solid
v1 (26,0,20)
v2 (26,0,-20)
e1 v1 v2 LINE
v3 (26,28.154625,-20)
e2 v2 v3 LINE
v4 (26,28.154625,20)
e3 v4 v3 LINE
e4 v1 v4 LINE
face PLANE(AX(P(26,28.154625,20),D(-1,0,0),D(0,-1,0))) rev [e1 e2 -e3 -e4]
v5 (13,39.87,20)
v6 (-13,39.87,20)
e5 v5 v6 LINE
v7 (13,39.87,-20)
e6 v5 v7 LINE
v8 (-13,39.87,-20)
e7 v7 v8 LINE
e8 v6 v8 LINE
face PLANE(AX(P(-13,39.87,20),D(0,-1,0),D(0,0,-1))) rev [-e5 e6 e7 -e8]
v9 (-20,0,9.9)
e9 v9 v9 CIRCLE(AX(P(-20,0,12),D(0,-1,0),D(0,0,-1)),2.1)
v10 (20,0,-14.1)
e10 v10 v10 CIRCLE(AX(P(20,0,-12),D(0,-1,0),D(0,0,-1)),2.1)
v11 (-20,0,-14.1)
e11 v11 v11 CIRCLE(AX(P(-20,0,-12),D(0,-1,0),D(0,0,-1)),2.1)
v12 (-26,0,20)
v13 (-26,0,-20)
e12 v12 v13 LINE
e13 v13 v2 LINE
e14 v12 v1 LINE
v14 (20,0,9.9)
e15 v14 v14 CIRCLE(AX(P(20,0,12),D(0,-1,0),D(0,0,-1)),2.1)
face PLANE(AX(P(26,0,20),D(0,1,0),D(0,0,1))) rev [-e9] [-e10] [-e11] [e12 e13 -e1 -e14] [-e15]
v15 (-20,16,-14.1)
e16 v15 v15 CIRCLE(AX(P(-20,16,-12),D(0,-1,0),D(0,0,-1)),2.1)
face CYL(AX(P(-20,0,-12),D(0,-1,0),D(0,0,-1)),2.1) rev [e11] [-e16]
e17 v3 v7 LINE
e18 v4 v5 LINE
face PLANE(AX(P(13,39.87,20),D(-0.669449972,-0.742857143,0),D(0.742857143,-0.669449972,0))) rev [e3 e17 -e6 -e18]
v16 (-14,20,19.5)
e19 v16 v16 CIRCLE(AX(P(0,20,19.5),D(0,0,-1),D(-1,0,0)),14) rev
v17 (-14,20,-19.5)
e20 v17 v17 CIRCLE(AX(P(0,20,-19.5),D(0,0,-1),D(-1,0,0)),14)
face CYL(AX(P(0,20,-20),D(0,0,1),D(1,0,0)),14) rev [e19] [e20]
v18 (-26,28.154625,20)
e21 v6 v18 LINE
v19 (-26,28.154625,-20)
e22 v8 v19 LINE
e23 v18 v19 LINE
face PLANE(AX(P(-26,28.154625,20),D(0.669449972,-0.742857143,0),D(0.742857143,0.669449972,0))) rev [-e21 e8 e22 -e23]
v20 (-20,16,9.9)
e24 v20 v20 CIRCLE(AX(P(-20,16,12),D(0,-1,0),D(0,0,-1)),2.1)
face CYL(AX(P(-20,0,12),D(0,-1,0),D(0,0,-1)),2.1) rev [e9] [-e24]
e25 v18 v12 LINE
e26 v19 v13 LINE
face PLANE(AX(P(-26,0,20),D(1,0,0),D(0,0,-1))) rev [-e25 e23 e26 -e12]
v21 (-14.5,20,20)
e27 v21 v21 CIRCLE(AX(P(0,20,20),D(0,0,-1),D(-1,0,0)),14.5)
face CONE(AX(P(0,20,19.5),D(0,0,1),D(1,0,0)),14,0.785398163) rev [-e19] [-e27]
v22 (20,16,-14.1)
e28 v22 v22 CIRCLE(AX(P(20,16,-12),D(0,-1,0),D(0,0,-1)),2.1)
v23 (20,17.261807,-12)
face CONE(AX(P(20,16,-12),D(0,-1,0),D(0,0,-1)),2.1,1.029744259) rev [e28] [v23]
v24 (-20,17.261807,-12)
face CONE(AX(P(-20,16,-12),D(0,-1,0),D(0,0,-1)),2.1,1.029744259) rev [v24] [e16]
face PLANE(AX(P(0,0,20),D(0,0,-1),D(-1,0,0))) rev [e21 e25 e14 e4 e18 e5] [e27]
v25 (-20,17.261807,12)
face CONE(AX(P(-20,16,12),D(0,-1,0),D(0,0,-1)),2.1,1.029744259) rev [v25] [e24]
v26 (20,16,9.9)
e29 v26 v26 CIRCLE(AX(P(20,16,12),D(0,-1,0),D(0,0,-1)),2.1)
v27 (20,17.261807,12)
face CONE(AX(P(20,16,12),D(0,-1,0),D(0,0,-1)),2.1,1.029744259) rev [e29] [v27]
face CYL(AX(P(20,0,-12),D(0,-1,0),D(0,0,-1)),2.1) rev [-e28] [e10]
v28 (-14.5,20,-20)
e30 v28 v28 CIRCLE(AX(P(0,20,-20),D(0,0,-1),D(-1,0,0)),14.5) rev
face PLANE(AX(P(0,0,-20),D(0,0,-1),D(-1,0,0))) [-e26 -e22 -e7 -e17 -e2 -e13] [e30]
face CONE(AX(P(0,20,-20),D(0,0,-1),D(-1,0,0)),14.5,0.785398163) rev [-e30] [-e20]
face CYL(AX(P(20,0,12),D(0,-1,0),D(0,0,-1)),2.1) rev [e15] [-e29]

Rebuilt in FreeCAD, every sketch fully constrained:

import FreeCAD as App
import Part
import Sketcher

V = App.Vector
Q = App.Units.Quantity


def edges_at(feature, points):
    """Names of the edges that pass closest to the given points."""
    edges = feature.Shape.Edges
    near = lambda p: min(range(len(edges)), key=lambda i: edges[i].distToShape(Part.Vertex(*p))[0])
    return sorted({f"Edge{near(p) + 1}" for p in points})

doc = App.newDocument("Part")
body = doc.addObject("PartDesign::Body", "Body")

sketch1 = body.newObject("Sketcher::SketchObject", "Sketch")
sketch1.AttachmentSupport = (doc.getObject("XY_Plane"), [""])
sketch1.MapMode = "FlatFace"
sketch1.addGeometry(Part.LineSegment(V(-26, 0, 0), V(26, 0, 0)), False)
sketch1.addGeometry(Part.LineSegment(V(26, 0, 0), V(26, 28, 0)), False)
sketch1.addGeometry(Part.LineSegment(V(26, 28, 0), V(13, 40, 0)), False)
sketch1.addGeometry(Part.LineSegment(V(13, 40, 0), V(-13, 40, 0)), False)
sketch1.addGeometry(Part.LineSegment(V(-13, 40, 0), V(-26, 28, 0)), False)
sketch1.addGeometry(Part.LineSegment(V(-26, 28, 0), V(-26, 0, 0)), False)
sketch1.addConstraint(Sketcher.Constraint("Coincident", 0, 2, 1, 1))
sketch1.addConstraint(Sketcher.Constraint("Coincident", 1, 2, 2, 1))
sketch1.addConstraint(Sketcher.Constraint("Coincident", 2, 2, 3, 1))
sketch1.addConstraint(Sketcher.Constraint("Coincident", 3, 2, 4, 1))
sketch1.addConstraint(Sketcher.Constraint("Coincident", 4, 2, 5, 1))
sketch1.addConstraint(Sketcher.Constraint("Coincident", 5, 2, 0, 1))
sketch1.addConstraint(Sketcher.Constraint("Horizontal", 0))
sketch1.addConstraint(Sketcher.Constraint("Vertical", 1))
sketch1.addConstraint(Sketcher.Constraint("Horizontal", 3))
sketch1.addConstraint(Sketcher.Constraint("Vertical", 5))
sketch1.addConstraint(Sketcher.Constraint("Symmetric", 0, 2, 5, 2, -1, 1))
sketch1.addConstraint(Sketcher.Constraint("Horizontal", 1, 2, 4, 2))
sketch1.addConstraint(Sketcher.Constraint("Equal", 2, 4))
sketch1.addConstraint(Sketcher.Constraint("DistanceX", 0, 1, 0, 2, Q("52 mm")))
sketch1.addConstraint(Sketcher.Constraint("DistanceX", 3, 2, 3, 1, Q("26 mm")))
sketch1.addConstraint(Sketcher.Constraint("Distance", 2, Q("17.5 mm")))
sketch1.addConstraint(Sketcher.Constraint("DistanceY", -1, 1, 2, 2, Q("39.87 mm")))
pad1 = body.newObject("PartDesign::Pad", "Pad")
pad1.Profile = sketch1
pad1.Length = 40
pad1.Midplane = True

sketch2 = body.newObject("Sketcher::SketchObject", "Sketch001")
sketch2.AttachmentSupport = (doc.getObject("XY_Plane"), [""])
sketch2.MapMode = "FlatFace"
sketch2.AttachmentOffset = App.Placement(V(0, 0, 20), App.Rotation())
sketch2.addGeometry(Part.Circle(V(0, 20, 0), V(0, 0, 1), 14), False)
sketch2.addConstraint(Sketcher.Constraint("PointOnObject", 0, 3, -2))
sketch2.addConstraint(Sketcher.Constraint("Diameter", 0, Q("28 mm")))
sketch2.addConstraint(Sketcher.Constraint("DistanceY", -1, 1, 0, 3, Q("20 mm")))
pocket1 = body.newObject("PartDesign::Pocket", "Pocket")
pocket1.Profile = sketch2
pocket1.Type = "ThroughAll"
doc.recompute()

chamfer = body.newObject("PartDesign::Chamfer", "Chamfer")
chamfer.Base = (pocket1, edges_at(pocket1, [(-14, 20, -20), (-14, 20, 20)]))
chamfer.Size = 0.5

sketch3 = body.newObject("Sketcher::SketchObject", "Sketch002")
sketch3.AttachmentSupport = (doc.getObject("XZ_Plane"), [""])
sketch3.MapMode = "FlatFace"
sketch3.addGeometry(Part.Circle(V(20, 12, 0), V(0, 0, 1), 2.1), False)
sketch3.addGeometry(Part.Circle(V(-20, 12, 0), V(0, 0, 1), 2.1), False)
sketch3.addGeometry(Part.Circle(V(-20, -12, 0), V(0, 0, 1), 2.1), False)
sketch3.addGeometry(Part.Circle(V(20, -12, 0), V(0, 0, 1), 2.1), False)
sketch3.addConstraint(Sketcher.Constraint("Equal", 0, 1))
sketch3.addConstraint(Sketcher.Constraint("Equal", 1, 2))
sketch3.addConstraint(Sketcher.Constraint("Equal", 2, 3))
sketch3.addConstraint(Sketcher.Constraint("Symmetric", 0, 3, 2, 3, -1, 1))
sketch3.addConstraint(Sketcher.Constraint("Symmetric", 1, 3, 3, 3, -1, 1))
sketch3.addConstraint(Sketcher.Constraint("Symmetric", 0, 3, 1, 3, -2))
sketch3.addConstraint(Sketcher.Constraint("Diameter", 0, Q("4.2 mm")))
sketch3.addConstraint(Sketcher.Constraint("DistanceX", -1, 1, 0, 3, Q("20 mm")))
sketch3.addConstraint(Sketcher.Constraint("DistanceY", -1, 1, 0, 3, Q("12 mm")))
doc.recompute()
hole = body.newObject("PartDesign::Hole", "Hole")
hole.Profile = sketch3
hole.ThreadType = "None"
hole.Diameter = 4.2
hole.DepthType = "Dimension"
hole.Depth = 16
hole.DrillPoint = "Angled"
hole.DrillPointAngle = 118

doc.recompute()
